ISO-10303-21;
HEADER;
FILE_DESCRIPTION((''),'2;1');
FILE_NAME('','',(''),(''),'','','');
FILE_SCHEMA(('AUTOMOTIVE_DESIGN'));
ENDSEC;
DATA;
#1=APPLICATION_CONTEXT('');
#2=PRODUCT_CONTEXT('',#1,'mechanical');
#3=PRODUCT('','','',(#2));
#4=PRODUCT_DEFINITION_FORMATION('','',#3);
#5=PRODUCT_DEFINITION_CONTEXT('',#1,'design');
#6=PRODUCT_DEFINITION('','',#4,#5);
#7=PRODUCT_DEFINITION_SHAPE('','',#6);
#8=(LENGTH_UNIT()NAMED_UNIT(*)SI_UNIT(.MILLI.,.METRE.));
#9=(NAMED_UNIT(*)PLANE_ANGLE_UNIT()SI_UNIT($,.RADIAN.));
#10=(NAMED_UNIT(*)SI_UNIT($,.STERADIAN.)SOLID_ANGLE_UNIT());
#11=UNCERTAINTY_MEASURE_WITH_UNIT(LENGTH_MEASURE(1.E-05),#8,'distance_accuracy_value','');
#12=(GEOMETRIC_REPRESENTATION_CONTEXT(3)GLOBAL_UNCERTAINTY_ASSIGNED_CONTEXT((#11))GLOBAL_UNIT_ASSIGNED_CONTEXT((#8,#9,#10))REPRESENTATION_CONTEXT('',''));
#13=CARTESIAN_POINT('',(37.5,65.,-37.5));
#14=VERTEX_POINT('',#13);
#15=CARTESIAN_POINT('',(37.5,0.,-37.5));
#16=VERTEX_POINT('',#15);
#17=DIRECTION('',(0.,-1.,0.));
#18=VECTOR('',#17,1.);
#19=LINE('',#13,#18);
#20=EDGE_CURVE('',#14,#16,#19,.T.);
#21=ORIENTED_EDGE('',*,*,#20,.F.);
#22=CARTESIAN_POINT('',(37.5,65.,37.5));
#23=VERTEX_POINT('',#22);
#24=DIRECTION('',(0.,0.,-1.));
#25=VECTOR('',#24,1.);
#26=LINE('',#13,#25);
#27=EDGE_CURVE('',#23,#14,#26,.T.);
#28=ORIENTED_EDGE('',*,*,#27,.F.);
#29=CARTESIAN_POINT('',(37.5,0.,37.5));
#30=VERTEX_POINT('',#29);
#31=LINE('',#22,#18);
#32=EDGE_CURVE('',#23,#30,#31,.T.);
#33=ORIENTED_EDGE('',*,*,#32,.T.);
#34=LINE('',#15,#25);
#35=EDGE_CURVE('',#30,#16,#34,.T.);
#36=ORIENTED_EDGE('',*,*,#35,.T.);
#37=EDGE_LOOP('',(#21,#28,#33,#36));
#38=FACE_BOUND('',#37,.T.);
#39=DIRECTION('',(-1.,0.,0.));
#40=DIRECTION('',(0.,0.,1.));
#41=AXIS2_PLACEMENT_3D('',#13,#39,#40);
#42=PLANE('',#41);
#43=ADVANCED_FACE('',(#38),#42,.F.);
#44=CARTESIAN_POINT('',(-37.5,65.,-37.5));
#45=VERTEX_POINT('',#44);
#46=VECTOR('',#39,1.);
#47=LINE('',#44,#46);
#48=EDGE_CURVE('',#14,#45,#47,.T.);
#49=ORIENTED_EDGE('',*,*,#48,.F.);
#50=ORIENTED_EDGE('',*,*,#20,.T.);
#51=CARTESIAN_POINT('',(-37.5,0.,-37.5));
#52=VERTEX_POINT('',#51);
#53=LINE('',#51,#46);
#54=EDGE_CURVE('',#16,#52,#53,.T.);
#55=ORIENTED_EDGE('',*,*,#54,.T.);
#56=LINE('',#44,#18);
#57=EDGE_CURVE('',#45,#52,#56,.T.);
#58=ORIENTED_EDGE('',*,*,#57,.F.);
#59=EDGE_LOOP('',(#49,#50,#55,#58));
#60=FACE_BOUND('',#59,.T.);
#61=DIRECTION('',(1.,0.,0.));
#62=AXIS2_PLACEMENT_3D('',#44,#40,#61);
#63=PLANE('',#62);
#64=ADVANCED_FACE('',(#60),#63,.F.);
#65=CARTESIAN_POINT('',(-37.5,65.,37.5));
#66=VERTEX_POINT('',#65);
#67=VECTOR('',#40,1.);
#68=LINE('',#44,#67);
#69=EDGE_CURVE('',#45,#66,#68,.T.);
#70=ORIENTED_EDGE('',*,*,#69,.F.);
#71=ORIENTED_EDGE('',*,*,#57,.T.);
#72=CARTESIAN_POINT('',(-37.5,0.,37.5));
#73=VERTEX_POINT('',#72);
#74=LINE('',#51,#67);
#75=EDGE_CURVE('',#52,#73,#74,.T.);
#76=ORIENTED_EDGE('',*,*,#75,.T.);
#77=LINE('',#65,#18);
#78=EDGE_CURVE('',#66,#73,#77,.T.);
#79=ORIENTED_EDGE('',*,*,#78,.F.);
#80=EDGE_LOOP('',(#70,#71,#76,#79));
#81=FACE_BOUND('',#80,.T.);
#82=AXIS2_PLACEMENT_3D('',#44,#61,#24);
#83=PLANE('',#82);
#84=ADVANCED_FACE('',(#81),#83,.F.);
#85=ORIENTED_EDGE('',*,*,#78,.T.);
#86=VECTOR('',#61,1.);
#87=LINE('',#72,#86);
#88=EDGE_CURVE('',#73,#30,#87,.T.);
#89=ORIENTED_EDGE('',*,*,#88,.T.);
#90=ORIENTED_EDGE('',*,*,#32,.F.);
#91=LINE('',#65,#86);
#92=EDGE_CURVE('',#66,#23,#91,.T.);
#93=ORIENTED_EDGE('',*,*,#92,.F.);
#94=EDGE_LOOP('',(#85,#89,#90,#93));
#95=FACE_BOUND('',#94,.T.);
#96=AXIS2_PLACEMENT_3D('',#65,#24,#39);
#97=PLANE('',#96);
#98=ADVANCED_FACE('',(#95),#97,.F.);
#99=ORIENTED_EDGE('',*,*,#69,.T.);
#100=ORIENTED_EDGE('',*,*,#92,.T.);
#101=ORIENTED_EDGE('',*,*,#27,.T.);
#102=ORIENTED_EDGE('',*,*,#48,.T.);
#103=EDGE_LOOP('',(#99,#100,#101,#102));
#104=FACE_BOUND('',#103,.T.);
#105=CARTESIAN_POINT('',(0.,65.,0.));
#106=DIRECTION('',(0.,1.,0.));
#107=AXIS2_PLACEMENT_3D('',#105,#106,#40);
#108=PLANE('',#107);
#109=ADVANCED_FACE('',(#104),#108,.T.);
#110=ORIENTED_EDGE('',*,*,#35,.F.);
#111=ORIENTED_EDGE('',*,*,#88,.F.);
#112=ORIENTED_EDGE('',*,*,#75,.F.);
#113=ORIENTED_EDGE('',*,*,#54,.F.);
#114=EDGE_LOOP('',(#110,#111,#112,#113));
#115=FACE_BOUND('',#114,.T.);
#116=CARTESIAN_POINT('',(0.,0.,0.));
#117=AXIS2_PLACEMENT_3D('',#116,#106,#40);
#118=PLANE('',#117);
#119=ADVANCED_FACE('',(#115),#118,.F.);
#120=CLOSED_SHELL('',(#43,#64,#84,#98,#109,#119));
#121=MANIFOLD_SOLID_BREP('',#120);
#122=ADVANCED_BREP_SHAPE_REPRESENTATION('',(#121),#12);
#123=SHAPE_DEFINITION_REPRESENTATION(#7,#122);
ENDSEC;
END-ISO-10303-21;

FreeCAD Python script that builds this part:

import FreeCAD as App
import Part
import Sketcher

doc = App.newDocument("Part")
body = doc.addObject("PartDesign::Body", "Body")

# Sketch on XZ plane
sketch1 = body.newObject("Sketcher::SketchObject", "Sketch")
sketch1.AttachmentSupport = (doc.getObject("XZ_Plane"), [""])
sketch1.MapMode = "FlatFace"
sketch1.addGeometry([
    Part.LineSegment(App.Vector(-37.5, -37.5, 0), App.Vector(-37.5, 37.5, 0)),
    Part.LineSegment(App.Vector(-37.5, 37.5, 0), App.Vector(37.5, 37.5, 0)),
    Part.LineSegment(App.Vector(37.5, 37.5, 0), App.Vector(37.5, -37.5, 0)),
    Part.LineSegment(App.Vector(37.5, -37.5, 0), App.Vector(-37.5, -37.5, 0)),
], False)
sketch1.addConstraint([
    Sketcher.Constraint("Coincident", 0, 2, 1, 1),
    Sketcher.Constraint("Coincident", 1, 2, 2, 1),
    Sketcher.Constraint("Coincident", 2, 2, 3, 1),
    Sketcher.Constraint("Coincident", 3, 2, 0, 1),
    Sketcher.Constraint("Vertical", 0),
    Sketcher.Constraint("Horizontal", 1),
    Sketcher.Constraint("Vertical", 2),
    Sketcher.Constraint("Horizontal", 3),
    Sketcher.Constraint("Symmetric", 0, 2, 2, 2, -1, 1),
    Sketcher.Constraint("Equal", 3, 0),
    Sketcher.Constraint("DistanceX", 1, 1, 1, 2, 75.0),
])
pad1 = body.newObject("PartDesign::Pad", "Pad")
pad1.Profile = sketch1
pad1.Length = 65
pad1.Reversed = True

doc.recompute()
